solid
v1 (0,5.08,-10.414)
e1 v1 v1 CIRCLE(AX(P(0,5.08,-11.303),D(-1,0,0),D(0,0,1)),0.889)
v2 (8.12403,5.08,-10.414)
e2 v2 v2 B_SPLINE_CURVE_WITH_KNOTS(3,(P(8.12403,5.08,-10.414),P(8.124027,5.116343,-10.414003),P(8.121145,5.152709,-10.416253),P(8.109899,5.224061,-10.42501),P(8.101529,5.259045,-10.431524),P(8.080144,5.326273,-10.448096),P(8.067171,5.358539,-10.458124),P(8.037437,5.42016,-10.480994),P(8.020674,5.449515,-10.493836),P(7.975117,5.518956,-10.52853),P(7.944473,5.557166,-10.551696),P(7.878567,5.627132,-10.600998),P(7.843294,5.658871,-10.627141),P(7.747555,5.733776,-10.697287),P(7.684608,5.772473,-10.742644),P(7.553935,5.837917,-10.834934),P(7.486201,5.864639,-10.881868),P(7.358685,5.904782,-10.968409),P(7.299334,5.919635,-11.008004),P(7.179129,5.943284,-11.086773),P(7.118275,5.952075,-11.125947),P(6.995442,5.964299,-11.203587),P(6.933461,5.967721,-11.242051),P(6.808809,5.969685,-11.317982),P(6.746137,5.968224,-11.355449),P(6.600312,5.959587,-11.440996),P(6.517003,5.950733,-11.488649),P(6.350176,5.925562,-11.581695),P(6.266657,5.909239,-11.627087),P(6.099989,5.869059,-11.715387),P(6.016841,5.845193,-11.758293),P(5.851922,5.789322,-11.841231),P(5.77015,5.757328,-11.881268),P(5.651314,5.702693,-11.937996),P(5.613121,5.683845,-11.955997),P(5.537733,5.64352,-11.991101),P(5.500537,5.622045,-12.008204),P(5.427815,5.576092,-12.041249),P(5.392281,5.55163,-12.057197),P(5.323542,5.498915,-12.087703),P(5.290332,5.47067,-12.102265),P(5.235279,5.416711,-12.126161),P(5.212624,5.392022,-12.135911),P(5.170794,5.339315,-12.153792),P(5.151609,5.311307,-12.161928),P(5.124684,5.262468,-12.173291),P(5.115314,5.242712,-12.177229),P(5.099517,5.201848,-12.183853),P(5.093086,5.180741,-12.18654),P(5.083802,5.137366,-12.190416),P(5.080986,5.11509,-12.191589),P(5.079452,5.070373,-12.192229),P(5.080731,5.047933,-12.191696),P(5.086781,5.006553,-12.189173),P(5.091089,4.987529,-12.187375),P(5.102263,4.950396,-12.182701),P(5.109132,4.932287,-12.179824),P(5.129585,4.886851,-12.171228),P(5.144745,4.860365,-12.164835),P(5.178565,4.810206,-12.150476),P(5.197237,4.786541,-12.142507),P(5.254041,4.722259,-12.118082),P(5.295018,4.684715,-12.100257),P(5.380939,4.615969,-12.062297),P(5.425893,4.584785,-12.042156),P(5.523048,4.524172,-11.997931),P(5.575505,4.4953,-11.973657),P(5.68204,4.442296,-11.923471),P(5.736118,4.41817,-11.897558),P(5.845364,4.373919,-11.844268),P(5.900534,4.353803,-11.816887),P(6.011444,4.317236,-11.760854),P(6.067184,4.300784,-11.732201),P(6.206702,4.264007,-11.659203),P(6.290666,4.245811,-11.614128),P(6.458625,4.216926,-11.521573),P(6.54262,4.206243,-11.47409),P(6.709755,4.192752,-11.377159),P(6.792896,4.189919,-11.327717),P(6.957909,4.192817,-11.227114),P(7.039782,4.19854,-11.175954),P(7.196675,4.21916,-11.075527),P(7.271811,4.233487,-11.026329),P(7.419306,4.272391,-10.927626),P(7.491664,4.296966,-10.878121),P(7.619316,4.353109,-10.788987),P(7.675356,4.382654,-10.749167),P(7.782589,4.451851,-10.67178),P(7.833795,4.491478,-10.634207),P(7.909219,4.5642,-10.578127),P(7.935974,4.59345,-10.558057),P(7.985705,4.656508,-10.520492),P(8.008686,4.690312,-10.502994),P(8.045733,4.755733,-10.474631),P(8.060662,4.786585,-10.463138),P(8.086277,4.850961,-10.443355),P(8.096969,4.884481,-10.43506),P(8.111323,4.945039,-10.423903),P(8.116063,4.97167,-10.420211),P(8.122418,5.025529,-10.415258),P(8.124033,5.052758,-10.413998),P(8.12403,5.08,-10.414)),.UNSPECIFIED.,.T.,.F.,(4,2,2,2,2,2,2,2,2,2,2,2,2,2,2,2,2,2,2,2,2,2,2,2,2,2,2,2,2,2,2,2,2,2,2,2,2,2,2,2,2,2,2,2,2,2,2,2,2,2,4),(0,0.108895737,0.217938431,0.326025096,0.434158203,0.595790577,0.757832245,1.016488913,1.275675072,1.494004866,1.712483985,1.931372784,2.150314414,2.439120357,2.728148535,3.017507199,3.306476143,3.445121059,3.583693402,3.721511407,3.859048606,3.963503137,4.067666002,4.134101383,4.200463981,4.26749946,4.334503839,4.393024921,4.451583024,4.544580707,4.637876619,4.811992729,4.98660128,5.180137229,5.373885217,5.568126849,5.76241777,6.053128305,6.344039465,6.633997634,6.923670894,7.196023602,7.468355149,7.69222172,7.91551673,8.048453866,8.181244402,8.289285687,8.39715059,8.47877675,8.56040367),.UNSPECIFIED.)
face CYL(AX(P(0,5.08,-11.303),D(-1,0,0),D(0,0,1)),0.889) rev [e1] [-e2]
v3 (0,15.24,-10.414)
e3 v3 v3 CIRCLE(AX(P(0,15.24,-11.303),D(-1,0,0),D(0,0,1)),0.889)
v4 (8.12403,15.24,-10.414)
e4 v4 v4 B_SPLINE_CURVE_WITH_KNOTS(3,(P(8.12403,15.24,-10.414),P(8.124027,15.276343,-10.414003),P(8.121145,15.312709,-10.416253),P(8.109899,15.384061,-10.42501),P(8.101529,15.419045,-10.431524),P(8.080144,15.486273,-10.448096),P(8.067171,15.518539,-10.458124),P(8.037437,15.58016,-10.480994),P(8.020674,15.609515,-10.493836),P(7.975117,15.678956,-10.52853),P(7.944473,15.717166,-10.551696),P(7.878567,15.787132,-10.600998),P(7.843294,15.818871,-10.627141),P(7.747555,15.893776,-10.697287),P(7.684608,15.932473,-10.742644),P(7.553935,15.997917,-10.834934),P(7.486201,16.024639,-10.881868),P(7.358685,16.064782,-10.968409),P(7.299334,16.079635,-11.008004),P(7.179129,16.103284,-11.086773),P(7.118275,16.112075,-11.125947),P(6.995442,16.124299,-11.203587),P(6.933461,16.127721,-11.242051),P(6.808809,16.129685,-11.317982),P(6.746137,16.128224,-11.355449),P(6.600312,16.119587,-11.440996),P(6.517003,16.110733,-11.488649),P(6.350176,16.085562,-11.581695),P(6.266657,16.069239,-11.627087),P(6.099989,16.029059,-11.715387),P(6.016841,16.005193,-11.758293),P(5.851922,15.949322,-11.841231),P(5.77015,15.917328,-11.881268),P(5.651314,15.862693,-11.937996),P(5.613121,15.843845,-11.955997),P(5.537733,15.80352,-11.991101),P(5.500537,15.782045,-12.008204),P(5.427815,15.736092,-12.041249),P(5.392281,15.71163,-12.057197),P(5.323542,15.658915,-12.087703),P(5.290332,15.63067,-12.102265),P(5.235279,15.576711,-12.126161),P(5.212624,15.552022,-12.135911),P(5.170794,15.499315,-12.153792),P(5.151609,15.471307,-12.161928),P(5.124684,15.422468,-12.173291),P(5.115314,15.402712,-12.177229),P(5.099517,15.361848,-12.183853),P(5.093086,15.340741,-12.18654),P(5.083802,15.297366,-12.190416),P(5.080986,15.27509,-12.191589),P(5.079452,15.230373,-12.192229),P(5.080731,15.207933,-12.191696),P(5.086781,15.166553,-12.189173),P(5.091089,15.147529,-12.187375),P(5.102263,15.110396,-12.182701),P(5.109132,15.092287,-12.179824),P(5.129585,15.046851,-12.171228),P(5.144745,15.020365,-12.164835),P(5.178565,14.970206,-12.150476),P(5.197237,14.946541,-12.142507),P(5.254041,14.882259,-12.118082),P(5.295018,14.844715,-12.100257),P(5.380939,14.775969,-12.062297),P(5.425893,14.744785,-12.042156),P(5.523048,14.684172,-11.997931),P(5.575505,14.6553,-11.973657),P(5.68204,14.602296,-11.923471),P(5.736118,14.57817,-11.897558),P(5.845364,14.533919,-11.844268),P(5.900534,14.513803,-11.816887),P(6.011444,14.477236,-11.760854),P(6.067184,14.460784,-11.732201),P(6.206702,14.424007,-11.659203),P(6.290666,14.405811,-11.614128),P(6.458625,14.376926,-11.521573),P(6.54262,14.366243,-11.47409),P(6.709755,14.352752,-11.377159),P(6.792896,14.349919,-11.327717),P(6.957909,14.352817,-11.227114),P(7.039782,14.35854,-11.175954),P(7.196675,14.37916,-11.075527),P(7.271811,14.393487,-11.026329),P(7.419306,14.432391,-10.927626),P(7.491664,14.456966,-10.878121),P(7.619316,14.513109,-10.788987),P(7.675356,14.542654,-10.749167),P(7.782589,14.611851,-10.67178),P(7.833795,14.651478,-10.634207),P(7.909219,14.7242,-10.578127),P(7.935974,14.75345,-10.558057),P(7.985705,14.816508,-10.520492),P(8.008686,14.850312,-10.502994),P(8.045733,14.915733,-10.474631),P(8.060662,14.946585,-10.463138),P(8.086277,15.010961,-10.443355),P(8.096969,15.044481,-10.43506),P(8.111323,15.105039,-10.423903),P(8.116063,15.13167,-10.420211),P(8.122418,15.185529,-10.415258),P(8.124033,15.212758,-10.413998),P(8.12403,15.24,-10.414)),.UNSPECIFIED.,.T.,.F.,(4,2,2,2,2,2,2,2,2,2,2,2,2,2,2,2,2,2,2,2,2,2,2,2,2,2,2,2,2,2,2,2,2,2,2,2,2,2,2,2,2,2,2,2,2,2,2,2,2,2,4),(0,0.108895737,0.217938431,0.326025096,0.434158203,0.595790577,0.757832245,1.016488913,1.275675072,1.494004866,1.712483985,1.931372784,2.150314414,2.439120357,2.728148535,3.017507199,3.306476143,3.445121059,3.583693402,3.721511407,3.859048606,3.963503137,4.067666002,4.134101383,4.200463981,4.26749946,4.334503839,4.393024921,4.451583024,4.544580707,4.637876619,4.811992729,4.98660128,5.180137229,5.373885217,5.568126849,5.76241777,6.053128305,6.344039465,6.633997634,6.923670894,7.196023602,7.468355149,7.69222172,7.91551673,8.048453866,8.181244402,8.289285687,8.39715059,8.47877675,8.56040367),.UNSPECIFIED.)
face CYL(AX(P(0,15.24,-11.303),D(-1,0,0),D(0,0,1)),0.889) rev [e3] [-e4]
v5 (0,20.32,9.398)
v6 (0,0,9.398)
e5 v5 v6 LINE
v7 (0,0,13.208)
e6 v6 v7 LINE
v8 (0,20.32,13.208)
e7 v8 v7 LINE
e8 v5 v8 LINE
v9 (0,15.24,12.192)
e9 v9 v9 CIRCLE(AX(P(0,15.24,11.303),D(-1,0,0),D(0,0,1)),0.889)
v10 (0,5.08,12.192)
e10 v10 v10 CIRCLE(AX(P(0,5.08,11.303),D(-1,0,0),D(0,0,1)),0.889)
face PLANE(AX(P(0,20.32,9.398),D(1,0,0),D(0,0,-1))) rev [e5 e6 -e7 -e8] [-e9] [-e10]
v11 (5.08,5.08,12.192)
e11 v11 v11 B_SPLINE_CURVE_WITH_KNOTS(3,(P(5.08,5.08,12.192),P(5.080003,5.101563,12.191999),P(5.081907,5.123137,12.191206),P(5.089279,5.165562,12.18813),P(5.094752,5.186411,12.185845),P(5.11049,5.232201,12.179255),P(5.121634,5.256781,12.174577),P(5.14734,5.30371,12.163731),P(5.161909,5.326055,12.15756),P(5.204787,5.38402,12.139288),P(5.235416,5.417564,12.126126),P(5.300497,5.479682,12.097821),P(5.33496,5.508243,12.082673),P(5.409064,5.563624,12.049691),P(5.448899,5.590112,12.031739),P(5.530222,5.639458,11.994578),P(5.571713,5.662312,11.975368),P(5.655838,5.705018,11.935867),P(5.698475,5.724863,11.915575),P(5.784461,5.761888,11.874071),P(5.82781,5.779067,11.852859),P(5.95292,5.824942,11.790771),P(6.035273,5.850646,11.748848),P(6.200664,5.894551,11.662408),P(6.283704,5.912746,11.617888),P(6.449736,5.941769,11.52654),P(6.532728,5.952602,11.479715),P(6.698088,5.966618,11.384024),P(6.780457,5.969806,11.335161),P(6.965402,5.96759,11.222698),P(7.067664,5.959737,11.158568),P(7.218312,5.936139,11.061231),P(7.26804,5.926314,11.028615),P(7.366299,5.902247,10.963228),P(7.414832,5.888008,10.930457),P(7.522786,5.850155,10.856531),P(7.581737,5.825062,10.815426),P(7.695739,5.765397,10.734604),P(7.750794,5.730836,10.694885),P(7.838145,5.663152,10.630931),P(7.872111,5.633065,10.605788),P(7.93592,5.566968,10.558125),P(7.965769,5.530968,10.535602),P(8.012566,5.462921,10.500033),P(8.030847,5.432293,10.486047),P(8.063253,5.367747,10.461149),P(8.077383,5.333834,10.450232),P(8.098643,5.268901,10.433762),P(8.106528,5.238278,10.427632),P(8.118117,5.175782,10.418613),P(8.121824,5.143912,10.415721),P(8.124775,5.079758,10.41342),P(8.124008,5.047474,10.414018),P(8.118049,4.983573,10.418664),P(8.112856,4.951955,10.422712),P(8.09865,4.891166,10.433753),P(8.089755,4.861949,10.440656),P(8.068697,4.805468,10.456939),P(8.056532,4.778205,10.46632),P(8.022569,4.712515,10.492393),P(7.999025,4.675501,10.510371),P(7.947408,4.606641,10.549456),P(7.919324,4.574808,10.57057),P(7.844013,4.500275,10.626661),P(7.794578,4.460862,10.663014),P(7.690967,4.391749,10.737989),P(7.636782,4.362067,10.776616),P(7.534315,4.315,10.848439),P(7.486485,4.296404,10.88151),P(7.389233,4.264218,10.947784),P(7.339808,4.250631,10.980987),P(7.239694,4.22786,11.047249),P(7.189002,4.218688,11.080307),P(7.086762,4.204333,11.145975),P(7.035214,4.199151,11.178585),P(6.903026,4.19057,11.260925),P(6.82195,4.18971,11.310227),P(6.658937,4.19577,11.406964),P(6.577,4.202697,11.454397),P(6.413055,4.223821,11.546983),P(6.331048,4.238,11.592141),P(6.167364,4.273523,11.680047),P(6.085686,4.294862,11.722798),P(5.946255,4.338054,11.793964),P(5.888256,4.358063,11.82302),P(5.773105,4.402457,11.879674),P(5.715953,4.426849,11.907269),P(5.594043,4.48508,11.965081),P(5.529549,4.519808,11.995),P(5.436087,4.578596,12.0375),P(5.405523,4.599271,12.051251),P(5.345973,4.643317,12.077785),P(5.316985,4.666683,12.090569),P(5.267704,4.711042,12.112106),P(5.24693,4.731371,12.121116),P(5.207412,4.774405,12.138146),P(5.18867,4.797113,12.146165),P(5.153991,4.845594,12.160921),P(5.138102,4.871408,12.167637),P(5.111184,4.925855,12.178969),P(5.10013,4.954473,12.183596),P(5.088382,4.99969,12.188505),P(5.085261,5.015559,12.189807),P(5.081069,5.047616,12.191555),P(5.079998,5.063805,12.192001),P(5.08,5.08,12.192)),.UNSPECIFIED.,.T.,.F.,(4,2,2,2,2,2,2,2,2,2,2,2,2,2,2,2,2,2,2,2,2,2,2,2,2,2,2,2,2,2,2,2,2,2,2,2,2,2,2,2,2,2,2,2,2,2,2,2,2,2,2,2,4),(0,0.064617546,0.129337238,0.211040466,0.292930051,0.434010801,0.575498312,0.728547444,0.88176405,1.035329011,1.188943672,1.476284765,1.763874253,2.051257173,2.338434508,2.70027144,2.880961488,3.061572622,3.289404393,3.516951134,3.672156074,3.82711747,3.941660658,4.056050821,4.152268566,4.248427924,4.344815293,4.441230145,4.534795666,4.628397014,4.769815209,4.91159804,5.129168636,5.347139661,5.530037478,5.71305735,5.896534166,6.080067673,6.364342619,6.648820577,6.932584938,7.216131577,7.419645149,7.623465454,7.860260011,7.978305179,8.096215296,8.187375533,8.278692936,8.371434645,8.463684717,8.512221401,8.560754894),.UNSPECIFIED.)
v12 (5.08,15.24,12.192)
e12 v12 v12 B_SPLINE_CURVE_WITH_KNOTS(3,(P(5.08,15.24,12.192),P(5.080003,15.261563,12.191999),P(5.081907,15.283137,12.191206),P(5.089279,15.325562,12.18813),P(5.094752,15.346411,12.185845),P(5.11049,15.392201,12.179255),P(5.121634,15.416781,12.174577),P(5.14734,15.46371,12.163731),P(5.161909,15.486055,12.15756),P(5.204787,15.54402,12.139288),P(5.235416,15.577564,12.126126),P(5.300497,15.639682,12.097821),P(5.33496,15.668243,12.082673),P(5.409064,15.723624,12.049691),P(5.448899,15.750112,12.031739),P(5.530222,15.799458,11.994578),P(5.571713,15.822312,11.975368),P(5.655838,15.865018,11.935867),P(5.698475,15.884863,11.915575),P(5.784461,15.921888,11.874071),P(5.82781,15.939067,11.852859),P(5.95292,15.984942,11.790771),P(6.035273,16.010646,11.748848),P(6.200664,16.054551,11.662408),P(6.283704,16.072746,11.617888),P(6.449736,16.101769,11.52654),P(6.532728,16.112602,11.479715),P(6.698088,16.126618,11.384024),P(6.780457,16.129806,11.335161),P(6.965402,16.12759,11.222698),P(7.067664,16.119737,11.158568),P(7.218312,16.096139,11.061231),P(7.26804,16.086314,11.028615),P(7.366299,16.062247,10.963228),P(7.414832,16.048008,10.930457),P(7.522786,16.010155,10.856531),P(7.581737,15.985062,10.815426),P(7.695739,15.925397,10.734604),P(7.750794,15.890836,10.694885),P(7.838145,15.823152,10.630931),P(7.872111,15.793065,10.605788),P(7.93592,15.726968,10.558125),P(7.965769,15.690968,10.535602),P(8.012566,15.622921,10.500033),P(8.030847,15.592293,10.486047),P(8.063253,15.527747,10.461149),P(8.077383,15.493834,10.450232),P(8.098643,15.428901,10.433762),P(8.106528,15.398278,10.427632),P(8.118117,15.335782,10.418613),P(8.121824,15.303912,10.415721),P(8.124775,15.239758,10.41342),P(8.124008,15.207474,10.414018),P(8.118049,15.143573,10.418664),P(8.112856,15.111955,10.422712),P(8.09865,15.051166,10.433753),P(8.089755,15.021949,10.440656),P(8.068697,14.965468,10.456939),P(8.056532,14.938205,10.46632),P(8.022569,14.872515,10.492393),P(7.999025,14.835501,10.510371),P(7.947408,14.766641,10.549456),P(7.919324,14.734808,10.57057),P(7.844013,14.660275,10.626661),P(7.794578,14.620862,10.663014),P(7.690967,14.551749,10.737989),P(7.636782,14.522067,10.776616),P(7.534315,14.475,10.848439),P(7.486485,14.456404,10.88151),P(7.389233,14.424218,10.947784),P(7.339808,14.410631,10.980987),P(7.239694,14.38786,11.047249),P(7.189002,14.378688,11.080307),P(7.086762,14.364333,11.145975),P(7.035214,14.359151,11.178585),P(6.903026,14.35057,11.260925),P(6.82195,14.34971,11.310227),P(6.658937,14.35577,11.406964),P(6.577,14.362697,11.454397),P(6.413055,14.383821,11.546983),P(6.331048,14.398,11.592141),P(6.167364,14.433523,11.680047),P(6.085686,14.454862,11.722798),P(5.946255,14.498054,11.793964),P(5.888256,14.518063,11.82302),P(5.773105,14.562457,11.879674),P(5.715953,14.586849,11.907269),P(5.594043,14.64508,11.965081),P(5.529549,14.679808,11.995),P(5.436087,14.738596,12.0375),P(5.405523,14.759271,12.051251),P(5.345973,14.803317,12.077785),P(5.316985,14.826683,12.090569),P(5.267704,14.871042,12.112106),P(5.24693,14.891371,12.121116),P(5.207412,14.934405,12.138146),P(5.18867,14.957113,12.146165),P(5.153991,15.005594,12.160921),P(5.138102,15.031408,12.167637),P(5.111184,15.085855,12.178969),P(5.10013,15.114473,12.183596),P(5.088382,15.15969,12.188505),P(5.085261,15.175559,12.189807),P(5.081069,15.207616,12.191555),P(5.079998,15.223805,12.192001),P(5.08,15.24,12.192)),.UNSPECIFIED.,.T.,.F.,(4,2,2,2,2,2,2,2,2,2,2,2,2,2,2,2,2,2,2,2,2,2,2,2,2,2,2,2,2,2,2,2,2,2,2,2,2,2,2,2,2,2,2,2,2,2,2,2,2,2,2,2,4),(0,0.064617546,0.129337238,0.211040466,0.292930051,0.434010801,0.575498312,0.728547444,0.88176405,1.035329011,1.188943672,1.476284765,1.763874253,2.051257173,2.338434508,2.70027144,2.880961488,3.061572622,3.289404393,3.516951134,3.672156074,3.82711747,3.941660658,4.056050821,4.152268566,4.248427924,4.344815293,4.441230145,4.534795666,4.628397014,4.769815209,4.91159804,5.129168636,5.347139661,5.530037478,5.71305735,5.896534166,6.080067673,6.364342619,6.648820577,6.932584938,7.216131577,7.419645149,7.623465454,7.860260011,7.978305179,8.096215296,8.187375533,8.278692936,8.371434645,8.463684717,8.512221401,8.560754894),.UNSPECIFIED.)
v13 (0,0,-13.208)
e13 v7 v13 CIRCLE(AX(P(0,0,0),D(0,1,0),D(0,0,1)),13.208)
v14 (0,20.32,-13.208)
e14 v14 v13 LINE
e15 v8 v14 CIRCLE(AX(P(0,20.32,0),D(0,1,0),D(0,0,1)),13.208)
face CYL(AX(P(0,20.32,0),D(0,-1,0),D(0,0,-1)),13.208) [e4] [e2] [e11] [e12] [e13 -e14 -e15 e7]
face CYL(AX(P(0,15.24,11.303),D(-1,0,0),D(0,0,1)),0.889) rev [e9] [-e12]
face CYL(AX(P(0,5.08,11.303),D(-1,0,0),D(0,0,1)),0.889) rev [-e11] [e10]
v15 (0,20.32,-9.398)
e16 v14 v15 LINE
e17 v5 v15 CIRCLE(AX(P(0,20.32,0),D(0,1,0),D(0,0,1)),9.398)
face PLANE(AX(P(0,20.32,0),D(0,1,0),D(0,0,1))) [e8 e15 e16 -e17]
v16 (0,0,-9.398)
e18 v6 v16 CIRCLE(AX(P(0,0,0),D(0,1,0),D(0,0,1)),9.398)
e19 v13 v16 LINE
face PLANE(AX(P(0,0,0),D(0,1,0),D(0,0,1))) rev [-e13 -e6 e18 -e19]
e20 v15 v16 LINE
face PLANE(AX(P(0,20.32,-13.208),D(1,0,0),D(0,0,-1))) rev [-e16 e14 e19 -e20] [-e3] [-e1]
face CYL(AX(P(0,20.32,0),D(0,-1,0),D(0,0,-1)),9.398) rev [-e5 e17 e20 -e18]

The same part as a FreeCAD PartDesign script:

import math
import FreeCAD as App
import Part
import Sketcher
from FreeCAD import Vector
Q = App.Units.Quantity

doc = App.newDocument("Part")
body = doc.addObject("PartDesign::Body", "Body")

# Sketch on XZ plane
sketch1 = doc.addObject("Sketcher::SketchObject", "Sketch")
body.addObject(sketch1)
sketch1.AttachmentSupport = (doc.XZ_Plane, [""])
sketch1.MapMode = "FlatFace"
sketch1.addGeometry(Part.LineSegment(Vector(0, -13.2, 0), Vector(0, -9.4, 0)), False)
sketch1.addGeometry(Part.ArcOfCircle(Part.Circle(Vector(0, 0, 0), Vector(0, 0, 1), 9.4), math.radians(-90), math.radians(90)), False)
sketch1.addGeometry(Part.LineSegment(Vector(0, 9.4, 0), Vector(0, 13.2, 0)), False)
sketch1.addGeometry(Part.ArcOfCircle(Part.Circle(Vector(0, 0, 0), Vector(0, 0, 1), 13.2), math.radians(-90), math.radians(90)), False)
sketch1.addConstraint(Sketcher.Constraint("Coincident", 0, 2, 1, 1))
sketch1.addConstraint(Sketcher.Constraint("Coincident", 1, 2, 2, 1))
sketch1.addConstraint(Sketcher.Constraint("Coincident", 2, 2, 3, 2))
sketch1.addConstraint(Sketcher.Constraint("Coincident", 3, 1, 0, 1))
sketch1.addConstraint(Sketcher.Constraint("Vertical", 0))
sketch1.addConstraint(Sketcher.Constraint("Vertical", 2))
sketch1.addConstraint(Sketcher.Constraint("Coincident", 1, 3, -1, 1))
sketch1.addConstraint(Sketcher.Constraint("Coincident", 3, 3, -1, 1))
sketch1.addConstraint(Sketcher.Constraint("PointOnObject", 0, 2, -2))
sketch1.addConstraint(Sketcher.Constraint("PointOnObject", 1, 2, -2))
sketch1.addConstraint(Sketcher.Constraint("Radius", 1, Q("0.37 in")))
sketch1.addConstraint(Sketcher.Constraint("Radius", 3, Q("0.52 in")))
pad1 = doc.addObject("PartDesign::Pad", "Pad")
body.addObject(pad1)
pad1.Profile = sketch1
pad1.Length = Q("0.8 in")
pad1.Reversed = True

# Sketch on YZ plane
sketch2 = doc.addObject("Sketcher::SketchObject", "Sketch001")
body.addObject(sketch2)
sketch2.AttachmentSupport = (doc.YZ_Plane, [""])
sketch2.MapMode = "FlatFace"
sketch2.addGeometry(Part.Circle(Vector(15.2, -11.3, 0), Vector(0, 0, 1), 0.9), False)
sketch2.addGeometry(Part.Circle(Vector(15.2, 11.3, 0), Vector(0, 0, 1), 0.9), False)
sketch2.addGeometry(Part.Circle(Vector(5.1, 11.3, 0), Vector(0, 0, 1), 0.9), False)
sketch2.addGeometry(Part.Circle(Vector(5.1, -11.3, 0), Vector(0, 0, 1), 0.9), False)
sketch2.addConstraint(Sketcher.Constraint("Equal", 0, 1))
sketch2.addConstraint(Sketcher.Constraint("Equal", 1, 2))
sketch2.addConstraint(Sketcher.Constraint("Equal", 2, 3))
sketch2.addConstraint(Sketcher.Constraint("Symmetric", 0, 3, 1, 3, -1))
sketch2.addConstraint(Sketcher.Constraint("Symmetric", 2, 3, 3, 3, -1))
sketch2.addConstraint(Sketcher.Constraint("Horizontal", 1, 3, 2, 3))
sketch2.addConstraint(Sketcher.Constraint("Diameter", 0, Q("0.07 in")))
sketch2.addConstraint(Sketcher.Constraint("DistanceX", -1, 1, 0, 3, Q("0.6 in")))
sketch2.addConstraint(Sketcher.Constraint("DistanceX", -1, 1, 2, 3, Q("0.2 in")))
sketch2.addConstraint(Sketcher.Constraint("DistanceY", 0, 3, 1, 3, Q("0.89 in")))
doc.recompute()
hole = doc.addObject("PartDesign::Hole", "Hole")
body.addObject(hole)
hole.Profile = sketch2
hole.ThreadType = "None"
hole.Diameter = Q("0.07 in")
hole.DepthType = "ThroughAll"
hole.Reversed = True

doc.recompute()
